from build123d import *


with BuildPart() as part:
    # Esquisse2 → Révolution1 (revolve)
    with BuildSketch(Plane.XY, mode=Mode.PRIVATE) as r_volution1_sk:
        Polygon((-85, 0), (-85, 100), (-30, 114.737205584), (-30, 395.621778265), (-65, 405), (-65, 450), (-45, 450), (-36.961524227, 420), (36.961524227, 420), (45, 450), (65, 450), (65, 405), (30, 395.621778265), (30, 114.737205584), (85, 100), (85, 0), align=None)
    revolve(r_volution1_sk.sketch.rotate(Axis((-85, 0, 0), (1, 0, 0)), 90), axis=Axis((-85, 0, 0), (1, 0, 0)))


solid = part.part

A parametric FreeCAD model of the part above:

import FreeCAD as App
import Part
import Sketcher
from FreeCAD import Vector
Q = App.Units.Quantity


def add_polygon(sketch, points):
    """Adds a closed chain of lines whose ends are joined by coincident constraints."""
    first, n = sketch.GeometryCount, len(points)
    for a, b in zip(points, points[1:] + points[:1]):
        sketch.addGeometry(Part.LineSegment(App.Vector(*a, 0), App.Vector(*b, 0)), False)
    for i in range(n):
        sketch.addConstraint(Sketcher.Constraint("Coincident", first + i, 2, first + (i + 1) % n, 1))

doc = App.newDocument("Part")
params = doc.addObject("Spreadsheet::Sheet", "Params")
for row, (alias, value) in enumerate([
    ("sketch1_width", "170 mm"),
    ("sketch1_width2", "20 mm"),
    ("sketch1_height", "100 mm"),
    ("sketch1_height2", "45 mm"),
    ("revolution_angle", "360 deg"),
], start=1):
    params.set(f"A{row}", alias)
    params.set(f"B{row}", "=" + value)
    params.setAlias(f"B{row}", alias)

body = doc.addObject("PartDesign::Body", "Body")

sketch1 = doc.addObject("Sketcher::SketchObject", "Sketch")
body.addObject(sketch1)
sketch1.AttachmentSupport = (doc.XY_Plane, [""])
sketch1.MapMode = "FlatFace"
add_polygon(sketch1, [(-85, 100), (-85, 0), (85, 0), (85, 100), (30, 115), (30, 396), (65, 405), (65, 450), (45, 450), (37, 420), (-37, 420), (-45, 450), (-65, 450), (-65, 405), (-30, 396), (-30, 115)])
sketch1.addConstraint([
    Sketcher.Constraint("Vertical", 0),
    Sketcher.Constraint("Horizontal", 1),
    Sketcher.Constraint("Vertical", 2),
    Sketcher.Constraint("Vertical", 4),
    Sketcher.Constraint("Vertical", 6),
    Sketcher.Constraint("Horizontal", 7),
    Sketcher.Constraint("Horizontal", 9),
    Sketcher.Constraint("Horizontal", 11),
    Sketcher.Constraint("Vertical", 12),
    Sketcher.Constraint("Vertical", 14),
    Sketcher.Constraint("Symmetric", 0, 2, 1, 2, -1, 1),
    Sketcher.Constraint("Symmetric", 7, 2, 10, 2, -2),
    Sketcher.Constraint("Symmetric", 5, 2, 12, 2, -2),
    Sketcher.Constraint("Symmetric", 4, 2, 13, 2, -2),
    Sketcher.Constraint("Perpendicular", 3, 8),
    Sketcher.Constraint("Perpendicular", 5, 10),
    Sketcher.Constraint("Perpendicular", 8, 13),
    Sketcher.Constraint("Perpendicular", 10, 15),
    Sketcher.Constraint("Horizontal", 3, 2, 14, 2),
    Sketcher.Constraint("DistanceX", 1, 1, 1, 2, 170.0),
    Sketcher.Constraint("DistanceX", 7, 2, 7, 1, 20.0),
    Sketcher.Constraint("DistanceY", 0, 2, 0, 1, 100.0),
    Sketcher.Constraint("DistanceY", 6, 1, 6, 2, 45.0),
    Sketcher.Constraint("Angle", 3, Q("165 deg")),
    Sketcher.Constraint("DistanceX", -1, 1, 3, 2, 30.0),
    Sketcher.Constraint("DistanceX", -1, 1, 5, 2, 65.0),
    Sketcher.Constraint("DistanceY", -1, 1, 5, 2, 405.0),
    Sketcher.Constraint("DistanceY", -1, 1, 8, 2, 420.0),
])
sketch1.setExpression("Constraints[35]", "Params.sketch1_width")
sketch1.setExpression("Constraints[36]", "Params.sketch1_width2")
sketch1.setExpression("Constraints[37]", "Params.sketch1_height")
sketch1.setExpression("Constraints[38]", "Params.sketch1_height2")
revolution = doc.addObject("PartDesign::Revolution", "Revolution")
body.addObject(revolution)
revolution.Profile = sketch1
revolution.ReferenceAxis = (sketch1, ["H_Axis"])
revolution.setExpression("Angle", "Params.revolution_angle")

doc.recompute()
